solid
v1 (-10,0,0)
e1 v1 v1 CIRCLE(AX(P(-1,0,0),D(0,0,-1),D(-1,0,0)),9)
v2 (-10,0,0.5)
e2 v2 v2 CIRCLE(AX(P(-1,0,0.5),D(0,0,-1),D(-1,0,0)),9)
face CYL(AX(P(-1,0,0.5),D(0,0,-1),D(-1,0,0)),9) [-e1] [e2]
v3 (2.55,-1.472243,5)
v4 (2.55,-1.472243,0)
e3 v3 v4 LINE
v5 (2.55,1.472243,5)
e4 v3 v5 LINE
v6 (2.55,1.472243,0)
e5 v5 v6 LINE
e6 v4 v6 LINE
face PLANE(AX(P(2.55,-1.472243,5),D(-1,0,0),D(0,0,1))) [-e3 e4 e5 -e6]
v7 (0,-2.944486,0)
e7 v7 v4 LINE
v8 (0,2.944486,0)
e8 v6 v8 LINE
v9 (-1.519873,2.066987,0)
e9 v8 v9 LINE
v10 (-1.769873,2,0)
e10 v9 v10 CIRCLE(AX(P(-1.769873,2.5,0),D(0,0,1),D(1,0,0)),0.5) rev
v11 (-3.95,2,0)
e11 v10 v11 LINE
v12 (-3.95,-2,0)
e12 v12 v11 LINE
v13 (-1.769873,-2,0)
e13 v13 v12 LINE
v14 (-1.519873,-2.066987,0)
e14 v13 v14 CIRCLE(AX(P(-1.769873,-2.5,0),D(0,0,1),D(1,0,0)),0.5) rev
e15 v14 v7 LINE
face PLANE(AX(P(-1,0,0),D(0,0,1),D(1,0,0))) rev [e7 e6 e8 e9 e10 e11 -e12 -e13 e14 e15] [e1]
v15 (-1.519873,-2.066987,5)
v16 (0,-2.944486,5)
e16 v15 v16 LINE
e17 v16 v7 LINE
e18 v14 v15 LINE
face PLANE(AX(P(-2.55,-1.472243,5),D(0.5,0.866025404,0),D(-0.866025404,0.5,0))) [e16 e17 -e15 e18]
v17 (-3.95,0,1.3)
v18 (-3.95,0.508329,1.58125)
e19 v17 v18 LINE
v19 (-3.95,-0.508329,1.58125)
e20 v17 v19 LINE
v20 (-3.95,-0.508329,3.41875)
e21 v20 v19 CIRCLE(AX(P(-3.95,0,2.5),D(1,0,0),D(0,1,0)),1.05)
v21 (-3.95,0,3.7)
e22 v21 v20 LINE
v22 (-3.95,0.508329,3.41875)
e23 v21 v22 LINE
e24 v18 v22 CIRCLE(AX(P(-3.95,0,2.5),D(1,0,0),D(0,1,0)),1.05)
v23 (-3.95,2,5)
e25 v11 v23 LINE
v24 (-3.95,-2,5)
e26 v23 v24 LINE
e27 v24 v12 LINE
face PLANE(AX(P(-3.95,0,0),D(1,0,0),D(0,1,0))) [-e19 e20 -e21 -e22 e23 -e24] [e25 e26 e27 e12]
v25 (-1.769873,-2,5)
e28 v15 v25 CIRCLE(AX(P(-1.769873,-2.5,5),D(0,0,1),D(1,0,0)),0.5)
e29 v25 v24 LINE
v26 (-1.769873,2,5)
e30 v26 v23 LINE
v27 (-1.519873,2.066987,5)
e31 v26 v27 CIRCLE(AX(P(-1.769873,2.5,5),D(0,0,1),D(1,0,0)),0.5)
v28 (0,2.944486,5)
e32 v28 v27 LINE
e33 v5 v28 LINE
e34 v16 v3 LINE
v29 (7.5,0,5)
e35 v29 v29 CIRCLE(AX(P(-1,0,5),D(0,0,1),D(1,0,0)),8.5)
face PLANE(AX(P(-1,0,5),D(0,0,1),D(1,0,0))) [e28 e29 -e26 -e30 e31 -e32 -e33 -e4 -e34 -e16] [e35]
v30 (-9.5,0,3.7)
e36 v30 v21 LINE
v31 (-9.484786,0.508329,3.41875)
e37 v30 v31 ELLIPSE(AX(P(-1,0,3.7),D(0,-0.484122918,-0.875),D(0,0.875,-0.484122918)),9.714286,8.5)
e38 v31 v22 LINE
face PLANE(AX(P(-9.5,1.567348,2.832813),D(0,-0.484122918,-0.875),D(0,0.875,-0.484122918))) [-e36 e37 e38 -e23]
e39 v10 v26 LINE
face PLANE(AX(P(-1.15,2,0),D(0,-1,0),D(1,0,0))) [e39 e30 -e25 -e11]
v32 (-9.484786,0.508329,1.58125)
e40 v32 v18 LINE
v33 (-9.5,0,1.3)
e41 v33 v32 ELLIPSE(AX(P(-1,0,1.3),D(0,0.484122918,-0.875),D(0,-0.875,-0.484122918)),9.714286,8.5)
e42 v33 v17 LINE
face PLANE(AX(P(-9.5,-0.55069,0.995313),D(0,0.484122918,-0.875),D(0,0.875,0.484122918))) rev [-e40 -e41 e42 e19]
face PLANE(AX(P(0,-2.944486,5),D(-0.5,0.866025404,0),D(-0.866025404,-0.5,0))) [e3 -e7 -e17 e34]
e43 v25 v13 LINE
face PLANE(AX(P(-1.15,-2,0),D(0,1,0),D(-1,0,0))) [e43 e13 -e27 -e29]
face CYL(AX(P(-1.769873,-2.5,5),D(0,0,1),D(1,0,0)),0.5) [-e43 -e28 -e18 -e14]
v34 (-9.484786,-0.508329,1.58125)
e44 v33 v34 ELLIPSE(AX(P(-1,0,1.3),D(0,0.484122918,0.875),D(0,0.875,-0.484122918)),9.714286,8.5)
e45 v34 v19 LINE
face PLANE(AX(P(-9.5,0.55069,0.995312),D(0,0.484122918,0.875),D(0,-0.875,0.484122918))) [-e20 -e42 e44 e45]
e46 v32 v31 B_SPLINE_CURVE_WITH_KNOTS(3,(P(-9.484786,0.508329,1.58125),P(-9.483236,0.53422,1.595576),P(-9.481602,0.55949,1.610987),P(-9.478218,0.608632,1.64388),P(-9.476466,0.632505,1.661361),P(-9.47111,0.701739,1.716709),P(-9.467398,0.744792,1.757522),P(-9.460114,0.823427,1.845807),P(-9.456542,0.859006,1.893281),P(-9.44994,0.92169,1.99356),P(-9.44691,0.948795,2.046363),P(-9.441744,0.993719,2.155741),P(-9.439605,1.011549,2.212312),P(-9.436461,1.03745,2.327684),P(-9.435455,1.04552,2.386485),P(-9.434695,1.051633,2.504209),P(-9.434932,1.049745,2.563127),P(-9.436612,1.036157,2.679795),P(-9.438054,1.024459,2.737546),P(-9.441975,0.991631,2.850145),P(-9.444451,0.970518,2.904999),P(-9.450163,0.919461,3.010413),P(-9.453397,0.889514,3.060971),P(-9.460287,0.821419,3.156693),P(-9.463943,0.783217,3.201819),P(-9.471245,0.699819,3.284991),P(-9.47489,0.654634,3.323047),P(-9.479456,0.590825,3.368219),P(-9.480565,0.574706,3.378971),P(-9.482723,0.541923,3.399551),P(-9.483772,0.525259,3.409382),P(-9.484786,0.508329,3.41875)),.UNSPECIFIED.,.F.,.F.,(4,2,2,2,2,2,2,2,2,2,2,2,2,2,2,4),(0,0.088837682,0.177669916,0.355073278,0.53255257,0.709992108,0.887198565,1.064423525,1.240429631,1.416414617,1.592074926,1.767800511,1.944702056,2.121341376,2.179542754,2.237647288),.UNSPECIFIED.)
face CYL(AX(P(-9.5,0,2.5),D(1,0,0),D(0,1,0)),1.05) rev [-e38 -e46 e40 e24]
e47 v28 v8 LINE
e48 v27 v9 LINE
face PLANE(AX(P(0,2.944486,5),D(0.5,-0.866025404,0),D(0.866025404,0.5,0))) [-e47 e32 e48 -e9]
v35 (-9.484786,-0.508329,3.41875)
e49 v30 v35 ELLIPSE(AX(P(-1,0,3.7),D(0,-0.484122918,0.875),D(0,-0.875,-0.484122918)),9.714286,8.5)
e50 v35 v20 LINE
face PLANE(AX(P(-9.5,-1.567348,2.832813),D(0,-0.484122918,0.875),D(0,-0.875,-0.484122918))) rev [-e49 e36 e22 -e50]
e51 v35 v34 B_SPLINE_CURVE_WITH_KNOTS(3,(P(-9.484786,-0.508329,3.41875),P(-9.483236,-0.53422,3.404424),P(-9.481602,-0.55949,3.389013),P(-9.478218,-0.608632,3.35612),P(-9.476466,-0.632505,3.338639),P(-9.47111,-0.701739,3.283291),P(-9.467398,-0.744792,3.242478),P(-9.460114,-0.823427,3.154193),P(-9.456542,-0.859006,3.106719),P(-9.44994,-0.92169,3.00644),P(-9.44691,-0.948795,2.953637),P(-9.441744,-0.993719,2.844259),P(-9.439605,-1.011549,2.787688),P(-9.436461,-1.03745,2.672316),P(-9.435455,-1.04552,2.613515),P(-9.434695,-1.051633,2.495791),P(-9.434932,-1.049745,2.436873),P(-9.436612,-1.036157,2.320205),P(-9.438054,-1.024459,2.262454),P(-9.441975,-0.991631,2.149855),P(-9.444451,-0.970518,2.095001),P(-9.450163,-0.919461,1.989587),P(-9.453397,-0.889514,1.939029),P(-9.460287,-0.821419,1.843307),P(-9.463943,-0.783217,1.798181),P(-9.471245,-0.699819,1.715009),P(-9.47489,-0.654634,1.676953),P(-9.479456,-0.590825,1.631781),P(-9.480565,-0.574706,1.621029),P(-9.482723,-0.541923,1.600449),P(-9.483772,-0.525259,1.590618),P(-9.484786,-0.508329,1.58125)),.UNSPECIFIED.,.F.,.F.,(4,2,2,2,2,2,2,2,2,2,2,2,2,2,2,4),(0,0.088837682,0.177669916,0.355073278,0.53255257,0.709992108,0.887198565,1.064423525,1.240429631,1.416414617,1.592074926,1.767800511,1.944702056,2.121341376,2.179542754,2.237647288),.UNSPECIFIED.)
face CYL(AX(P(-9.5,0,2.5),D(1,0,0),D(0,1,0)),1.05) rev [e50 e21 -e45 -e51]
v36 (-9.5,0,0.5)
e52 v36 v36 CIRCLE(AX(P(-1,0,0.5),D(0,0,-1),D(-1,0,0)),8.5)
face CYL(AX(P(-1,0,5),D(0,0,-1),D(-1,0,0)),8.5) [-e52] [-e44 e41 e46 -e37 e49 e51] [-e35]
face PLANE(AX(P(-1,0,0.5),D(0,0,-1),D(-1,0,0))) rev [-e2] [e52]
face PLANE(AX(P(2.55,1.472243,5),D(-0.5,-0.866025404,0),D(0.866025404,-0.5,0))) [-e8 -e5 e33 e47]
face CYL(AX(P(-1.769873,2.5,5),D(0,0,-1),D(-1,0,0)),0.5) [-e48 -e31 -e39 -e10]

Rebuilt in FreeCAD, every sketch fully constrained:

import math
import FreeCAD as App
import Part
import Sketcher

V = App.Vector
Q = App.Units.Quantity


def edges_at(feature, points):
    """Names of the edges that pass closest to the given points."""
    edges = feature.Shape.Edges
    near = lambda p: min(range(len(edges)), key=lambda i: edges[i].distToShape(Part.Vertex(*p))[0])
    return sorted({f"Edge{near(p) + 1}" for p in points})

doc = App.newDocument("Part")
params = doc.addObject("Spreadsheet::Sheet", "Params")
for row, (alias, value) in enumerate([
    ("sketch1_diameter", "17 mm"),
    ("pad1_length", "5 mm"),
    ("sketch2_width", "4 mm"),
    ("sketch2_height", "5 mm"),
    ("pocket1_length", "1.4 mm"),
    ("pocket1_length2", "1.4 mm"),
    ("fillet_radius", "0.5 mm"),
    ("sketch3_radius", "1.05 mm"),
    ("sketch4_diameter", "18 mm"),
    ("sketch4_diameter2", "17 mm"),
    ("pad2_length", "0.5 mm"),
], start=1):
    params.set(f"A{row}", alias)
    params.set(f"B{row}", "=" + value)
    params.setAlias(f"B{row}", alias)

body = doc.addObject("PartDesign::Body", "Body")

# Sketch on XY plane
sketch1 = body.newObject("Sketcher::SketchObject", "Sketch")
sketch1.AttachmentSupport = (doc.getObject("XY_Plane"), [""])
sketch1.MapMode = "FlatFace"
sketch1.addGeometry([
    Part.Circle(V(-1, 0, 0), V(0, 0, 1), 8.5),  # 0
    Part.LineSegment(V(2.5, -1.5, 0), V(0, -2.9, 0)),  # 1
    Part.LineSegment(V(0, -2.9, 0), V(-2.5, -1.5, 0)),  # 2
    Part.LineSegment(V(-2.5, -1.5, 0), V(-2.5, 1.5, 0)),  # 3
    Part.LineSegment(V(-2.5, 1.5, 0), V(0, 2.9, 0)),  # 4
    Part.LineSegment(V(0, 2.9, 0), V(2.5, 1.5, 0)),  # 5
    Part.LineSegment(V(2.5, 1.5, 0), V(2.5, -1.5, 0)),  # 6
], False)
sketch1.addConstraint([
    Sketcher.Constraint("Coincident", 1, 2, 2, 1),
    Sketcher.Constraint("Coincident", 2, 2, 3, 1),
    Sketcher.Constraint("Coincident", 3, 2, 4, 1),
    Sketcher.Constraint("Coincident", 4, 2, 5, 1),
    Sketcher.Constraint("Coincident", 5, 2, 6, 1),
    Sketcher.Constraint("Coincident", 6, 2, 1, 1),
    Sketcher.Constraint("Vertical", 3),
    Sketcher.Constraint("Vertical", 6),
    Sketcher.Constraint("Symmetric", 1, 2, 4, 2, -1, 1),
    Sketcher.Constraint("Symmetric", 2, 2, 5, 2, -1, 1),
    Sketcher.Constraint("PointOnObject", 0, 3, -1),
    Sketcher.Constraint("PointOnObject", 1, 2, -2),
    Sketcher.Constraint("Parallel", 1, 4),
    Sketcher.Constraint("Horizontal", 3, 2, 5, 2),
    Sketcher.Constraint("Diameter", 0, Q("17 mm")),
    Sketcher.Constraint("Angle", 1, Q("-150 deg")),
    Sketcher.Constraint("DistanceX", 0, 3, -1, 1, Q("1 mm")),
    Sketcher.Constraint("DistanceX", 3, 2, 5, 2, Q("5.1 mm")),
    Sketcher.Constraint("DistanceY", 3, 1, 3, 2, Q("2.944486 mm")),
])
sketch1.setExpression("Constraints[14]", "Params.sketch1_diameter")
pad1 = body.newObject("PartDesign::Pad", "Pad")
pad1.Profile = sketch1
pad1.setExpression("Length", "Params.pad1_length")

# Sketch on YZ plane
sketch2 = body.newObject("Sketcher::SketchObject", "Sketch001")
sketch2.AttachmentSupport = (doc.getObject("YZ_Plane"), [""])
sketch2.MapMode = "FlatFace"
sketch2.AttachmentOffset = App.Placement(V(0, 0, -2.55), App.Rotation())
sketch2.addGeometry([
    Part.LineSegment(V(2, 5, 0), V(-2, 5, 0)),
    Part.LineSegment(V(-2, 5, 0), V(-2, 0, 0)),
    Part.LineSegment(V(-2, 0, 0), V(2, 0, 0)),
    Part.LineSegment(V(2, 0, 0), V(2, 5, 0)),
], False)
sketch2.addConstraint([
    Sketcher.Constraint("Coincident", 0, 2, 1, 1),
    Sketcher.Constraint("Coincident", 1, 2, 2, 1),
    Sketcher.Constraint("Coincident", 2, 2, 3, 1),
    Sketcher.Constraint("Coincident", 3, 2, 0, 1),
    Sketcher.Constraint("Horizontal", 0),
    Sketcher.Constraint("Vertical", 1),
    Sketcher.Constraint("Horizontal", 2),
    Sketcher.Constraint("Vertical", 3),
    Sketcher.Constraint("Symmetric", 1, 2, 2, 2, -1, 1),
    Sketcher.Constraint("DistanceX", 0, 2, 0, 1, Q("4 mm")),
    Sketcher.Constraint("DistanceY", 1, 2, 1, 1, Q("5 mm")),
])
sketch2.setExpression("Constraints[9]", "Params.sketch2_width")
sketch2.setExpression("Constraints[10]", "Params.sketch2_height")
pocket1 = body.newObject("PartDesign::Pocket", "Pocket")
pocket1.Profile = sketch2
pocket1.Type = "TwoLengths"
pocket1.setExpression("Length", "Params.pocket1_length")
pocket1.setExpression("Length2", "Params.pocket1_length2")
pocket1.Reversed = True
doc.recompute()

fillet = body.newObject("PartDesign::Fillet", "Fillet")
fillet.Base = (pocket1, edges_at(pocket1, [(-1.636, 2, 2.5), (-1.636, -2, 2.5)]))
fillet.setExpression("Radius", "Params.fillet_radius")

# Sketch on YZ plane
sketch3 = body.newObject("Sketcher::SketchObject", "Sketch002")
sketch3.AttachmentSupport = (doc.getObject("YZ_Plane"), [""])
sketch3.MapMode = "FlatFace"
sketch3.AttachmentOffset = App.Placement(V(0, 0, -3.95), App.Rotation())
sketch3.addGeometry([
    Part.LineSegment(V(0, 3.7, 0), V(-0.5, 3.4, 0)),  # 0
    Part.ArcOfCircle(Part.Circle(V(0, 2.5, 0), V(0, 0, 1), 1.1), math.radians(119), math.radians(241)),  # 1
    Part.LineSegment(V(-0.5, 1.6, 0), V(0, 1.3, 0)),  # 2
    Part.LineSegment(V(0, 1.3, 0), V(0.5, 1.6, 0)),  # 3
    Part.ArcOfCircle(Part.Circle(V(0, 2.5, 0), V(0, 0, 1), 1.1), math.radians(-61), math.radians(61)),  # 4
    Part.LineSegment(V(0.5, 3.4, 0), V(0, 3.7, 0)),  # 5
], False)
sketch3.addConstraint([
    Sketcher.Constraint("Tangent", 0, 2, 1, 1),
    Sketcher.Constraint("Tangent", 1, 2, 2, 1),
    Sketcher.Constraint("Coincident", 2, 2, 3, 1),
    Sketcher.Constraint("Tangent", 3, 2, 4, 1),
    Sketcher.Constraint("Tangent", 4, 2, 5, 1),
    Sketcher.Constraint("Coincident", 5, 2, 0, 1),
    Sketcher.Constraint("Coincident", 4, 3, 1, 3),
    Sketcher.Constraint("Equal", 1, 4),
    Sketcher.Constraint("Symmetric", 1, 2, 3, 2, -2),
    Sketcher.Constraint("PointOnObject", 5, 2, -2),
    Sketcher.Constraint("Parallel", 0, 3),
    Sketcher.Constraint("Radius", 1, Q("1.05 mm")),
    Sketcher.Constraint("DistanceY", -1, 1, 1, 3, Q("2.5 mm")),
    Sketcher.Constraint("DistanceY", -1, 1, 2, 2, Q("1.3 mm")),
])
sketch3.setExpression("Constraints[11]", "Params.sketch3_radius")
pocket2 = body.newObject("PartDesign::Pocket", "Pocket001")
pocket2.Profile = sketch3
pocket2.Type = "ThroughAll"

# Sketch on XY plane
sketch4 = body.newObject("Sketcher::SketchObject", "Sketch003")
sketch4.AttachmentSupport = (doc.getObject("XY_Plane"), [""])
sketch4.MapMode = "FlatFace"
sketch4.addGeometry([
    Part.Circle(V(-1, 0, 0), V(0, 0, 1), 9),
    Part.Circle(V(-1, 0, 0), V(0, 0, 1), 8),
], False)
sketch4.addConstraint([
    Sketcher.Constraint("Coincident", 1, 3, 0, 3),
    Sketcher.Constraint("PointOnObject", 0, 3, -1),
    Sketcher.Constraint("Diameter", 0, Q("18 mm")),
    Sketcher.Constraint("Diameter", 1, Q("17 mm")),
    Sketcher.Constraint("DistanceX", 0, 3, -1, 1, Q("1 mm")),
])
sketch4.setExpression("Constraints[2]", "Params.sketch4_diameter")
sketch4.setExpression("Constraints[3]", "Params.sketch4_diameter2")
pad2 = body.newObject("PartDesign::Pad", "Pad001")
pad2.Profile = sketch4
pad2.setExpression("Length", "Params.pad2_length")

doc.recompute()
